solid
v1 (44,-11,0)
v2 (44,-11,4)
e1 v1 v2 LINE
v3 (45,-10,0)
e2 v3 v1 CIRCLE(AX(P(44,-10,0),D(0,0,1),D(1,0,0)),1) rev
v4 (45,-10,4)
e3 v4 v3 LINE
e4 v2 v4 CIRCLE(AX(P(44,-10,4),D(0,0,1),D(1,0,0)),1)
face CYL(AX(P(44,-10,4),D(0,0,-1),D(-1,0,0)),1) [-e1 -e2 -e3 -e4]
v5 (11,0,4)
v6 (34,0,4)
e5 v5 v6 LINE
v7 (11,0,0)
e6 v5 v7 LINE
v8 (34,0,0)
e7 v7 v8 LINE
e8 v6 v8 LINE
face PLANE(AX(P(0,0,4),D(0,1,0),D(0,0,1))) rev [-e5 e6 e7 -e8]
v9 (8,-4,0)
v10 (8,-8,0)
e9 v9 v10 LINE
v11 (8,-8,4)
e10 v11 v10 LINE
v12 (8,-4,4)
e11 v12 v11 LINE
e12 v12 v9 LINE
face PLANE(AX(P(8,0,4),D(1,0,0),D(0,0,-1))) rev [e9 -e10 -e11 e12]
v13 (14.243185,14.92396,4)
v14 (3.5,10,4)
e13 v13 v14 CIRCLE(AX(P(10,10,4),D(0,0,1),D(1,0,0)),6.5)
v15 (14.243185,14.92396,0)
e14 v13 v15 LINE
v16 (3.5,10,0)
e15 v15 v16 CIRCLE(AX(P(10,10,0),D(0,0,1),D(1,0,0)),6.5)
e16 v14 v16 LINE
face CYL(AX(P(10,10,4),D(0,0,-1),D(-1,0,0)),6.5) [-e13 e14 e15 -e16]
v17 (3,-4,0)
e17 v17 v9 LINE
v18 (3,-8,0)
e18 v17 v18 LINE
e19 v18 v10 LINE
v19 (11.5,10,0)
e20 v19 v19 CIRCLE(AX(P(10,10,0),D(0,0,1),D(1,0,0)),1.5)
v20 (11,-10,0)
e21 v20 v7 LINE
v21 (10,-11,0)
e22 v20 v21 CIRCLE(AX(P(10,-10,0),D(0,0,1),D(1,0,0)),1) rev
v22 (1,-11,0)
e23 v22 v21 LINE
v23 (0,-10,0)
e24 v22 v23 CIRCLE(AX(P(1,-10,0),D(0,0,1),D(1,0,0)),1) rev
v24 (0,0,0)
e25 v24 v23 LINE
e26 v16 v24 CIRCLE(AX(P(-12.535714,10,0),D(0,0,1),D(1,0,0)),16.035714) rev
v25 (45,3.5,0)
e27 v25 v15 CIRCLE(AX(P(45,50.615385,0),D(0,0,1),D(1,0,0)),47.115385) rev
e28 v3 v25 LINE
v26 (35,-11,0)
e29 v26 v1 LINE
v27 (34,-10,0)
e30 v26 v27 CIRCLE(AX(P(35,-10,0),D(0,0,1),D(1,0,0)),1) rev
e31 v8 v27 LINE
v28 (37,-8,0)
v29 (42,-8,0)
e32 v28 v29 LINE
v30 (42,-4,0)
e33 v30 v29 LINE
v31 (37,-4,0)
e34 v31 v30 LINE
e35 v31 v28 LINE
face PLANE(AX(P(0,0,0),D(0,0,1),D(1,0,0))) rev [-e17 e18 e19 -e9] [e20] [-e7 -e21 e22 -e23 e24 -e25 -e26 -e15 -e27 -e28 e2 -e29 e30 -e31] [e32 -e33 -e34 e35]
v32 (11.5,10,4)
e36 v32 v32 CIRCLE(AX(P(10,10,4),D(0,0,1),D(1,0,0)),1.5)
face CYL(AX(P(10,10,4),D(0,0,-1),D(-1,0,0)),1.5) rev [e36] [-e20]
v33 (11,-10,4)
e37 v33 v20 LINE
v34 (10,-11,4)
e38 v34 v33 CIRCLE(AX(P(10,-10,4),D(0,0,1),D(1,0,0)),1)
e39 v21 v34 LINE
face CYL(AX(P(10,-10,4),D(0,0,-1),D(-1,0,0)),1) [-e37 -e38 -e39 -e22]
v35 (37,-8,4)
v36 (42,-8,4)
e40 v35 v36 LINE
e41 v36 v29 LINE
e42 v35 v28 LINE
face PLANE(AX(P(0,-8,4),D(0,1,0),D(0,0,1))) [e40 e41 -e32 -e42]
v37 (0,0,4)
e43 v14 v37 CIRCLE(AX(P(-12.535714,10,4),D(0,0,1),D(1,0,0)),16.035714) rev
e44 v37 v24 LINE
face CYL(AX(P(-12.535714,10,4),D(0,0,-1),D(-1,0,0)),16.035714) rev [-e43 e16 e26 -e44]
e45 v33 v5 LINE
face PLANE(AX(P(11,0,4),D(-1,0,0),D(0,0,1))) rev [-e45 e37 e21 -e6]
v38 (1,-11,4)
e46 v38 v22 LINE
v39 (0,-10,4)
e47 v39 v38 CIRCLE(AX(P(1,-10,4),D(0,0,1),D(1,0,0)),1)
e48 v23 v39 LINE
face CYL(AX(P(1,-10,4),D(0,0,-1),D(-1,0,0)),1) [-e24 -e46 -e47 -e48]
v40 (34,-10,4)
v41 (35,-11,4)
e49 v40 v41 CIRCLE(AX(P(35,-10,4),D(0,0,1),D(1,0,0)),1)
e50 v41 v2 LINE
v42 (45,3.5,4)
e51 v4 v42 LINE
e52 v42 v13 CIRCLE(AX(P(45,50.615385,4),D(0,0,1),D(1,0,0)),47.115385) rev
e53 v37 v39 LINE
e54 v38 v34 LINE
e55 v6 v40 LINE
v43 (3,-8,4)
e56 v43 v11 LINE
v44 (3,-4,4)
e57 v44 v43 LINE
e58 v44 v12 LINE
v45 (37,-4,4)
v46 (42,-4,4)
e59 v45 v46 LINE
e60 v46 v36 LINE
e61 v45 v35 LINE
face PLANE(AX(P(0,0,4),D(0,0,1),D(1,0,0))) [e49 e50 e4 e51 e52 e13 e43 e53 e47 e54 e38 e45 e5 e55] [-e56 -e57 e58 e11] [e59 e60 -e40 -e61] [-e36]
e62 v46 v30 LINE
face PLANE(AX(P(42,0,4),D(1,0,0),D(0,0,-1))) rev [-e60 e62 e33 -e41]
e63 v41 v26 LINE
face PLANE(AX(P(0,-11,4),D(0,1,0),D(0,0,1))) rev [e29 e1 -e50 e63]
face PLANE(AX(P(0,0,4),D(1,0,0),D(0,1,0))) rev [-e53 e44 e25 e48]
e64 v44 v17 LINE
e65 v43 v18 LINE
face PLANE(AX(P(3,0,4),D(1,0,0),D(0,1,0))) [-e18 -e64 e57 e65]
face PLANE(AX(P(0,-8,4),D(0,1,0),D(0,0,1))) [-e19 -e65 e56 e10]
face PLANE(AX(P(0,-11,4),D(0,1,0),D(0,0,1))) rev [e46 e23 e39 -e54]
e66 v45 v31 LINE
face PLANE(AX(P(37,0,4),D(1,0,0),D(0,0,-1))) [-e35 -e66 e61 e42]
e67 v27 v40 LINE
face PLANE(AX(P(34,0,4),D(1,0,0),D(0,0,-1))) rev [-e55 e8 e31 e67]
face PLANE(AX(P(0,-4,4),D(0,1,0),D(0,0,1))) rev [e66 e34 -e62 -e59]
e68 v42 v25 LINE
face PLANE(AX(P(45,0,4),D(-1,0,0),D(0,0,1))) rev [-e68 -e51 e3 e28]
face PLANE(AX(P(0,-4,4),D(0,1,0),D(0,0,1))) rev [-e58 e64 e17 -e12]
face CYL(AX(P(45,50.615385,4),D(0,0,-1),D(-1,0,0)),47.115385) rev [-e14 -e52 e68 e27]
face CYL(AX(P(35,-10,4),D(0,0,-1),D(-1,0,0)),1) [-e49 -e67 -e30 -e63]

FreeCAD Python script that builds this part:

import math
import FreeCAD as App
import Part
import Sketcher
from FreeCAD import Vector


def edges_at(feature, points):
    """Names of the edges that pass closest to the given points."""
    edges = feature.Shape.Edges
    near = lambda p: min(range(len(edges)), key=lambda i: edges[i].distToShape(Part.Vertex(*p))[0])
    return sorted({f"Edge{near(p) + 1}" for p in points})


def add_polygon(sketch, points):
    """Adds a closed chain of lines whose ends are joined by coincident constraints."""
    first, n = sketch.GeometryCount, len(points)
    for a, b in zip(points, points[1:] + points[:1]):
        sketch.addGeometry(Part.LineSegment(App.Vector(*a, 0), App.Vector(*b, 0)), False)
    for i in range(n):
        sketch.addConstraint(Sketcher.Constraint("Coincident", first + i, 2, first + (i + 1) % n, 1))

doc = App.newDocument("Part")
body = doc.addObject("PartDesign::Body", "Body")

sketch1 = body.newObject("Sketcher::SketchObject", "Sketch")
sketch1.AttachmentSupport = (doc.getObject("XY_Plane"), [""])
sketch1.MapMode = "FlatFace"
sketch1.addGeometry(Part.ArcOfCircle(Part.Circle(Vector(-12.5, 10, 0), Vector(0, 0, 1), 16), math.radians(-39), math.radians(0)), False)
sketch1.addGeometry(Part.LineSegment(Vector(0, 0, 0), Vector(0, -11, 0)), False)
sketch1.addGeometry(Part.LineSegment(Vector(0, -11, 0), Vector(11, -11, 0)), False)
sketch1.addGeometry(Part.LineSegment(Vector(11, -11, 0), Vector(11, 0, 0)), False)
sketch1.addGeometry(Part.LineSegment(Vector(11, 0, 0), Vector(34, 0, 0)), False)
sketch1.addGeometry(Part.LineSegment(Vector(34, 0, 0), Vector(34, -11, 0)), False)
sketch1.addGeometry(Part.LineSegment(Vector(34, -11, 0), Vector(45, -11, 0)), False)
sketch1.addGeometry(Part.LineSegment(Vector(45, -11, 0), Vector(45, 3.5, 0)), False)
sketch1.addGeometry(Part.ArcOfCircle(Part.Circle(Vector(45, 50.6, 0), Vector(0, 0, 1), 47.1), math.radians(-131), math.radians(-90)), False)
sketch1.addGeometry(Part.ArcOfCircle(Part.Circle(Vector(10, 10, 0), Vector(0, 0, 1), 6.5), math.radians(49), math.radians(180)), False)
add_polygon(sketch1, [(8, -8), (3, -8), (3, -4), (8, -4)])
add_polygon(sketch1, [(42, -8), (37, -8), (37, -4), (42, -4)])
sketch1.addGeometry(Part.Circle(Vector(10, 10, 0), Vector(0, 0, 1), 1.5), False)
sketch1.addConstraint(Sketcher.Constraint("Coincident", 0, 1, 1, 1))
sketch1.addConstraint(Sketcher.Constraint("Coincident", 1, 2, 2, 1))
sketch1.addConstraint(Sketcher.Constraint("Coincident", 2, 2, 3, 1))
sketch1.addConstraint(Sketcher.Constraint("Coincident", 3, 2, 4, 1))
sketch1.addConstraint(Sketcher.Constraint("Coincident", 4, 2, 5, 1))
sketch1.addConstraint(Sketcher.Constraint("Coincident", 5, 2, 6, 1))
sketch1.addConstraint(Sketcher.Constraint("Coincident", 6, 2, 7, 1))
sketch1.addConstraint(Sketcher.Constraint("Coincident", 7, 2, 8, 2))
sketch1.addConstraint(Sketcher.Constraint("Tangent", 8, 1, 9, 1))
sketch1.addConstraint(Sketcher.Constraint("Tangent", 9, 2, 0, 2))
sketch1.addConstraint(Sketcher.Constraint("Vertical", 1))
sketch1.addConstraint(Sketcher.Constraint("Horizontal", 2))
sketch1.addConstraint(Sketcher.Constraint("Vertical", 3))
sketch1.addConstraint(Sketcher.Constraint("Horizontal", 4))
sketch1.addConstraint(Sketcher.Constraint("Vertical", 5))
sketch1.addConstraint(Sketcher.Constraint("Horizontal", 6))
sketch1.addConstraint(Sketcher.Constraint("Vertical", 7))
sketch1.addConstraint(Sketcher.Constraint("Horizontal", 10))
sketch1.addConstraint(Sketcher.Constraint("Vertical", 11))
sketch1.addConstraint(Sketcher.Constraint("Horizontal", 12))
sketch1.addConstraint(Sketcher.Constraint("Vertical", 13))
sketch1.addConstraint(Sketcher.Constraint("Horizontal", 14))
sketch1.addConstraint(Sketcher.Constraint("Vertical", 15))
sketch1.addConstraint(Sketcher.Constraint("Horizontal", 16))
sketch1.addConstraint(Sketcher.Constraint("Vertical", 17))
sketch1.addConstraint(Sketcher.Constraint("Coincident", 0, 1, -1, 1))
sketch1.addConstraint(Sketcher.Constraint("Coincident", 18, 3, 9, 3))
sketch1.addConstraint(Sketcher.Constraint("PointOnObject", 3, 2, -1))
sketch1.addConstraint(Sketcher.Constraint("Horizontal", 0, 3, 9, 3))
sketch1.addConstraint(Sketcher.Constraint("Horizontal", 2, 2, 5, 2))
sketch1.addConstraint(Sketcher.Constraint("Horizontal", 13, 2, 14, 2))
sketch1.addConstraint(Sketcher.Constraint("Horizontal", 12, 2, 15, 2))
sketch1.addConstraint(Sketcher.Constraint("Vertical", 8, 3, 6, 2))
sketch1.addConstraint(Sketcher.Constraint("Equal", 2, 6))
sketch1.addConstraint(Sketcher.Constraint("Equal", 12, 14))
sketch1.addConstraint(Sketcher.Constraint("Equal", 6, 1))
sketch1.addConstraint(Sketcher.Constraint("Diameter", 18, 3.0))
sketch1.addConstraint(Sketcher.Constraint("Radius", 9, 6.5))
sketch1.addConstraint(Sketcher.Constraint("DistanceX", 2, 1, 2, 2, 11.0))
sketch1.addConstraint(Sketcher.Constraint("DistanceX", 4, 1, 4, 2, 23.0))
sketch1.addConstraint(Sketcher.Constraint("DistanceX", 10, 2, 10, 1, 5.0))
sketch1.addConstraint(Sketcher.Constraint("DistanceY", 11, 1, 11, 2, 4.0))
sketch1.addConstraint(Sketcher.Constraint("DistanceY", 7, 1, 7, 2, 14.5))
sketch1.addConstraint(Sketcher.Constraint("DistanceY", -1, 1, 0, 3, 10.0))
sketch1.addConstraint(Sketcher.Constraint("DistanceX", -1, 1, 9, 3, 10.0))
sketch1.addConstraint(Sketcher.Constraint("DistanceX", -1, 1, 10, 2, 3.0))
sketch1.addConstraint(Sketcher.Constraint("DistanceY", 10, 2, -1, 1, 8.0))
sketch1.addConstraint(Sketcher.Constraint("DistanceX", -1, 1, 14, 2, 37.0))
pad1 = body.newObject("PartDesign::Pad", "Pad")
pad1.Profile = sketch1
pad1.Length = 4
doc.recompute()

fillet = body.newObject("PartDesign::Fillet", "Fillet")
fillet.Base = (pad1, edges_at(pad1, [
    (45, -11, 2),
    (34, -11, 2),
    (11, -11, 2),
    (0, -11, 2),
]))
fillet.Radius = 1

doc.recompute()
